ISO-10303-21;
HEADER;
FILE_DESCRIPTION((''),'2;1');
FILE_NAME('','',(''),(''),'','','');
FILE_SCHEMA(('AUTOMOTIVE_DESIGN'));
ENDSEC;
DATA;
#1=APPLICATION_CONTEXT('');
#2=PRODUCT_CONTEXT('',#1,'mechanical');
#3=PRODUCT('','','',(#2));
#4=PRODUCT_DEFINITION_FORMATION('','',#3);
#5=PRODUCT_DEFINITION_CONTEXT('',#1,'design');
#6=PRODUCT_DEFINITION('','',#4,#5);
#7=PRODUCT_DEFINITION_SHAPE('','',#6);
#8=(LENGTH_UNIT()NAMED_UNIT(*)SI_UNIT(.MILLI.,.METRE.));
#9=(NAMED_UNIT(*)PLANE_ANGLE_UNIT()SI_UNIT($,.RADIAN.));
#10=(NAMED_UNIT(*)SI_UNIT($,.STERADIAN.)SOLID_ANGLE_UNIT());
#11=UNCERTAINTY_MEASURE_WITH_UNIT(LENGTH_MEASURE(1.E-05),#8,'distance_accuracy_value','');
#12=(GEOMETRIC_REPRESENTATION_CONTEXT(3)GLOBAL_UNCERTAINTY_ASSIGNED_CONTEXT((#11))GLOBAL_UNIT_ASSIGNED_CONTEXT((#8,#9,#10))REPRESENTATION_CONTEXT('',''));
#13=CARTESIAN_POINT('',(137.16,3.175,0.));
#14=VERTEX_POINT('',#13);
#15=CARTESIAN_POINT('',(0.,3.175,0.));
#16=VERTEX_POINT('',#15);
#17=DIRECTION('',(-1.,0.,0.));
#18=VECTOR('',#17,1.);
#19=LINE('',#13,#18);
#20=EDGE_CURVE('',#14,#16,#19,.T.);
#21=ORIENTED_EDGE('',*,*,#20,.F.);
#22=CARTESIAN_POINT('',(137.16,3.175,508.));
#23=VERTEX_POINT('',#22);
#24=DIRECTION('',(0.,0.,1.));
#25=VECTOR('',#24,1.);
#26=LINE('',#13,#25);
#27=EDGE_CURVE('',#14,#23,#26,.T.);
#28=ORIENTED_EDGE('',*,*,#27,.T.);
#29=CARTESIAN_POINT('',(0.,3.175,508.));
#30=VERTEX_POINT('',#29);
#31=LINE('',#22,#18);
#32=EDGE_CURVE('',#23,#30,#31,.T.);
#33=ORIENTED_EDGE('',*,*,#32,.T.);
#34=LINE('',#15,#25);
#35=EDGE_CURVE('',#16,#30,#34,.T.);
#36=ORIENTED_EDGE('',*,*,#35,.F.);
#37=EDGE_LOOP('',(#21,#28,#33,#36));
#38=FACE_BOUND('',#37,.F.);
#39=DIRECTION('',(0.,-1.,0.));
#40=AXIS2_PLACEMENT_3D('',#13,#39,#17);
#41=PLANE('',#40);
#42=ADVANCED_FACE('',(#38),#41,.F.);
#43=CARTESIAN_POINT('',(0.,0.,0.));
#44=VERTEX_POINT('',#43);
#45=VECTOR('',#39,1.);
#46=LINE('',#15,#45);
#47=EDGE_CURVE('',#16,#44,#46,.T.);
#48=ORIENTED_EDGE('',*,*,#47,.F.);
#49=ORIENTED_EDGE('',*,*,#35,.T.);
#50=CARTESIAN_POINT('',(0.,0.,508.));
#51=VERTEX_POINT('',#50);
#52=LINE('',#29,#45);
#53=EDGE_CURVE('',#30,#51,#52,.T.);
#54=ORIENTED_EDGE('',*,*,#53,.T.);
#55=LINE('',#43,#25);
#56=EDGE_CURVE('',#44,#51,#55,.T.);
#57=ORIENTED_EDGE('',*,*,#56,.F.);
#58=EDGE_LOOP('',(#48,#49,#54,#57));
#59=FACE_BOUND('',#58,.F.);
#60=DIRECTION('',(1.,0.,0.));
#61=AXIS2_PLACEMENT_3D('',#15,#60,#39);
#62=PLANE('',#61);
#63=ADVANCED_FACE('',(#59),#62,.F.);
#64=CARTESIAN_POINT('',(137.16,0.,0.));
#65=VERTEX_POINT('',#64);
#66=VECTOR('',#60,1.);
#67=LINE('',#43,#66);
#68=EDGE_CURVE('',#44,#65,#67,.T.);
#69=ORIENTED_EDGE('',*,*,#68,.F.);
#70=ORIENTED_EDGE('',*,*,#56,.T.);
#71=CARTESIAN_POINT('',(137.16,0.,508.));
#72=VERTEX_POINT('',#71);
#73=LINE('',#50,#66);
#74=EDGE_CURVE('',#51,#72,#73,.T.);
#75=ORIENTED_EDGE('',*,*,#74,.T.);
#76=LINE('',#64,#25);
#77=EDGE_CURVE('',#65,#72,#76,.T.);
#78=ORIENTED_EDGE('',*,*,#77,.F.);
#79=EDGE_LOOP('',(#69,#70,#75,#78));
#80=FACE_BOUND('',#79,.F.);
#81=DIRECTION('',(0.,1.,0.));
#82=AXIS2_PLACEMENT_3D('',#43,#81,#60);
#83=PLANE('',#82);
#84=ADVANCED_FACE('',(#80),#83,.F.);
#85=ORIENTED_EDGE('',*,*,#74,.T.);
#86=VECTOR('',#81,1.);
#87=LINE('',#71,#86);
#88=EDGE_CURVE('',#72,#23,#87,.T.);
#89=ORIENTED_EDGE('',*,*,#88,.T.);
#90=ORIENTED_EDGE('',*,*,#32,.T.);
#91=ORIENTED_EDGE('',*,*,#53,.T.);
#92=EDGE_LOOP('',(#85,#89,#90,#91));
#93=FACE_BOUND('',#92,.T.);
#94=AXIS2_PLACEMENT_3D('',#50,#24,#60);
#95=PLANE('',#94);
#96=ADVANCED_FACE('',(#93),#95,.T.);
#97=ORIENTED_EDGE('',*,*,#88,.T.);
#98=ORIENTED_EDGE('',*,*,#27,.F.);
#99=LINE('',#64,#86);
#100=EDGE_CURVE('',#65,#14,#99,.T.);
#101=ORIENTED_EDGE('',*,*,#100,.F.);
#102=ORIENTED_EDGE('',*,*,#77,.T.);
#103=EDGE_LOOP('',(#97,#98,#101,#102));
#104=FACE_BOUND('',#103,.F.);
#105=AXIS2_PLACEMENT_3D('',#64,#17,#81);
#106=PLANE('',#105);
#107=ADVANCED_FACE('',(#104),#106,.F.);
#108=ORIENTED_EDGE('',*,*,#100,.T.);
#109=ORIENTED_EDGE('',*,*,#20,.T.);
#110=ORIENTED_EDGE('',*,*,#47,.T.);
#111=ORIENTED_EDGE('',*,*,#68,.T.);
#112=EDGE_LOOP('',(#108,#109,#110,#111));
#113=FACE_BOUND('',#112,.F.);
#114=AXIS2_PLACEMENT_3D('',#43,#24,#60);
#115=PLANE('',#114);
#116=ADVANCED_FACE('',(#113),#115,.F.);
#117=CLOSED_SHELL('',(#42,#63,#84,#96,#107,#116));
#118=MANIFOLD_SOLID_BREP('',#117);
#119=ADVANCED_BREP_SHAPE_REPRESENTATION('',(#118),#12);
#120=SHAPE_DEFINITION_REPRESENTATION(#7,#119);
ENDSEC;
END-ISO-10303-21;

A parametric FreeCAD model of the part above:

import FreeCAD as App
import Part
import Sketcher
Q = App.Units.Quantity


def add_polygon(sketch, points):
    """Adds a closed chain of lines whose ends are joined by coincident constraints."""
    first, n = sketch.GeometryCount, len(points)
    for a, b in zip(points, points[1:] + points[:1]):
        sketch.addGeometry(Part.LineSegment(App.Vector(*a, 0), App.Vector(*b, 0)), False)
    for i in range(n):
        sketch.addConstraint(Sketcher.Constraint("Coincident", first + i, 2, first + (i + 1) % n, 1))

doc = App.newDocument("Part")
params = doc.addObject("Spreadsheet::Sheet", "Params")
for row, (alias, value) in enumerate([
    ("sketch1_width", "5.4 in"),
    ("sketch1_height", "0.125 in"),
    ("pad1_length", "20 in"),
], start=1):
    params.set(f"A{row}", alias)
    params.set(f"B{row}", "=" + value)
    params.setAlias(f"B{row}", alias)

body = doc.addObject("PartDesign::Body", "Body")

# Sketch on XY plane
sketch1 = body.newObject("Sketcher::SketchObject", "Sketch")
sketch1.AttachmentSupport = (doc.getObject("XY_Plane"), [""])
sketch1.MapMode = "FlatFace"
add_polygon(sketch1, [(0, 3.2), (0, 0), (137.2, 0), (137.2, 3.2)])  # lines 0-3
sketch1.addConstraint(Sketcher.Constraint("Vertical", 0))
sketch1.addConstraint(Sketcher.Constraint("Horizontal", 1))
sketch1.addConstraint(Sketcher.Constraint("Vertical", 2))
sketch1.addConstraint(Sketcher.Constraint("Horizontal", 3))
sketch1.addConstraint(Sketcher.Constraint("Coincident", 0, 2, -1, 1))
sketch1.addConstraint(Sketcher.Constraint("DistanceX", 1, 1, 1, 2, Q("5.4 in")))
sketch1.addConstraint(Sketcher.Constraint("DistanceY", 0, 2, 0, 1, Q("0.125 in")))
sketch1.setExpression("Constraints[9]", "Params.sketch1_width")
sketch1.setExpression("Constraints[10]", "Params.sketch1_height")
pad1 = body.newObject("PartDesign::Pad", "Pad")
pad1.Profile = sketch1
pad1.setExpression("Length", "Params.pad1_length")

doc.recompute()
